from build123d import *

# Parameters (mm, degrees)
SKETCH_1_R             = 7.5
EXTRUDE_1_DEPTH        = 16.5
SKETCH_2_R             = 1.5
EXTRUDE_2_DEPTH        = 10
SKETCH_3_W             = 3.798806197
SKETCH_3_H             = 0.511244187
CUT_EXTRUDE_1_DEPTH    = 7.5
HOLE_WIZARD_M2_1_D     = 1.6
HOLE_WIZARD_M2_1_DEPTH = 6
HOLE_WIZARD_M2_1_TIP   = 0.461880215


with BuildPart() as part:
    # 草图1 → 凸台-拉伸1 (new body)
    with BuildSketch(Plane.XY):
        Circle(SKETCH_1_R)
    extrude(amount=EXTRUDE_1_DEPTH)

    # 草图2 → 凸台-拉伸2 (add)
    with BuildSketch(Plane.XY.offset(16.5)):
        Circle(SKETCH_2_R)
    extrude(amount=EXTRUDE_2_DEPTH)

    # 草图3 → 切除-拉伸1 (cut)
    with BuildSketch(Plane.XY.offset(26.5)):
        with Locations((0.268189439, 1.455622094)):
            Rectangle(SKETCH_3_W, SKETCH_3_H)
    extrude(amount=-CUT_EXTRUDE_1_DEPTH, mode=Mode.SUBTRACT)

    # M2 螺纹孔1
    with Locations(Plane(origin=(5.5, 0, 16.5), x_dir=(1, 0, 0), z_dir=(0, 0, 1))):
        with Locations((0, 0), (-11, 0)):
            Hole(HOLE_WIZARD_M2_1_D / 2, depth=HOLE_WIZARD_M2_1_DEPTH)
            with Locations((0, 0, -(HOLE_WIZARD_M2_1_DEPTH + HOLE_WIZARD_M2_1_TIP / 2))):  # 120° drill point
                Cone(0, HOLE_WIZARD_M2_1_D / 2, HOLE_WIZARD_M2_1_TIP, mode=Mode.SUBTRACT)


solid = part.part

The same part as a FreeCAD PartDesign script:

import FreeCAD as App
import Part
import Sketcher

V = App.Vector
Q = App.Units.Quantity


def add_polygon(sketch, points):
    """Adds a closed chain of lines whose ends are joined by coincident constraints."""
    first, n = sketch.GeometryCount, len(points)
    for a, b in zip(points, points[1:] + points[:1]):
        sketch.addGeometry(Part.LineSegment(App.Vector(*a, 0), App.Vector(*b, 0)), False)
    for i in range(n):
        sketch.addConstraint(Sketcher.Constraint("Coincident", first + i, 2, first + (i + 1) % n, 1))

doc = App.newDocument("Part")
params = doc.addObject("Spreadsheet::Sheet", "Params")
for row, (alias, value) in enumerate([
    ("sketch1_diameter", "15 mm"),
    ("pad1_length", "16.5 mm"),
    ("sketch2_diameter", "3 mm"),
    ("pad2_length", "10 mm"),
    ("pocket1_length", "7.5 mm"),
    ("sketch4_diameter", "1.6 mm"),
    ("hole_diameter", "1.6 mm"),
    ("hole_depth", "6 mm"),
], start=1):
    params.set(f"A{row}", alias)
    params.set(f"B{row}", "=" + value)
    params.setAlias(f"B{row}", alias)

body = doc.addObject("PartDesign::Body", "Body")

# Sketch on XY plane
sketch1 = body.newObject("Sketcher::SketchObject", "Sketch")
sketch1.AttachmentSupport = (doc.getObject("XY_Plane"), [""])
sketch1.MapMode = "FlatFace"
sketch1.addGeometry(Part.Circle(V(0, 0, 0), V(0, 0, 1), 8), False)
sketch1.addConstraint([
    Sketcher.Constraint("Coincident", 0, 3, -1, 1),
    Sketcher.Constraint("Diameter", 0, Q("15 mm")),
])
sketch1.setExpression("Constraints[1]", "Params.sketch1_diameter")
pad1 = body.newObject("PartDesign::Pad", "Pad")
pad1.Profile = sketch1
pad1.setExpression("Length", "Params.pad1_length")

# Sketch on XY plane
sketch2 = body.newObject("Sketcher::SketchObject", "Sketch001")
sketch2.AttachmentSupport = (doc.getObject("XY_Plane"), [""])
sketch2.MapMode = "FlatFace"
sketch2.AttachmentOffset = App.Placement(V(0, 0, 16.5), App.Rotation())
sketch2.addGeometry(Part.Circle(V(0, 0, 0), V(0, 0, 1), 1.5), False)
sketch2.addConstraint([
    Sketcher.Constraint("Coincident", 0, 3, -1, 1),
    Sketcher.Constraint("Diameter", 0, Q("3 mm")),
])
sketch2.setExpression("Constraints[1]", "Params.sketch2_diameter")
pad2 = body.newObject("PartDesign::Pad", "Pad001")
pad2.Profile = sketch2
pad2.setExpression("Length", "Params.pad2_length")

# Sketch on XY plane
sketch3 = body.newObject("Sketcher::SketchObject", "Sketch002")
sketch3.AttachmentSupport = (doc.getObject("XY_Plane"), [""])
sketch3.MapMode = "FlatFace"
sketch3.AttachmentOffset = App.Placement(V(0, 0, 26.5), App.Rotation())
add_polygon(sketch3, [(-1.6, 1.7), (-1.6, 1.2), (2.2, 1.2), (2.2, 1.7)])  # lines 0-3
sketch3.addConstraint([
    Sketcher.Constraint("Vertical", 0),
    Sketcher.Constraint("Horizontal", 1),
    Sketcher.Constraint("Vertical", 2),
    Sketcher.Constraint("Horizontal", 3),
    Sketcher.Constraint("DistanceY", -1, 1, 0, 2, Q("1.2 mm")),
    Sketcher.Constraint("DistanceX", 1, 1, 1, 2, Q("3.798806 mm")),
    Sketcher.Constraint("DistanceY", 0, 2, 0, 1, Q("0.511244 mm")),
    Sketcher.Constraint("DistanceX", 0, 2, -1, 1, Q("1.631214 mm")),
])
pocket1 = body.newObject("PartDesign::Pocket", "Pocket")
pocket1.Profile = sketch3
pocket1.setExpression("Length", "Params.pocket1_length")

# Sketch on XY plane
sketch4 = body.newObject("Sketcher::SketchObject", "Sketch003")
sketch4.AttachmentSupport = (doc.getObject("XY_Plane"), [""])
sketch4.MapMode = "FlatFace"
sketch4.AttachmentOffset = App.Placement(V(0, 0, 16.5), App.Rotation())
sketch4.addGeometry([
    Part.Circle(V(5.5, 0, 0), V(0, 0, 1), 0.8),
    Part.Circle(V(-5.5, 0, 0), V(0, 0, 1), 0.8),
], False)
sketch4.addConstraint([
    Sketcher.Constraint("Equal", 0, 1),
    Sketcher.Constraint("Symmetric", 0, 3, 1, 3, -1, 1),
    Sketcher.Constraint("PointOnObject", 0, 3, -1),
    Sketcher.Constraint("Diameter", 0, Q("1.6 mm")),
    Sketcher.Constraint("DistanceX", 1, 3, 0, 3, Q("11 mm")),
])
sketch4.setExpression("Constraints[3]", "Params.sketch4_diameter")
doc.recompute()
hole = body.newObject("PartDesign::Hole", "Hole")
hole.Profile = sketch4
hole.ThreadType = "None"
hole.setExpression("Diameter", "Params.hole_diameter")
hole.DepthType = "Dimension"
hole.setExpression("Depth", "Params.hole_depth")
hole.DrillPoint = "Angled"
hole.DrillPointAngle = 120

doc.recompute()
